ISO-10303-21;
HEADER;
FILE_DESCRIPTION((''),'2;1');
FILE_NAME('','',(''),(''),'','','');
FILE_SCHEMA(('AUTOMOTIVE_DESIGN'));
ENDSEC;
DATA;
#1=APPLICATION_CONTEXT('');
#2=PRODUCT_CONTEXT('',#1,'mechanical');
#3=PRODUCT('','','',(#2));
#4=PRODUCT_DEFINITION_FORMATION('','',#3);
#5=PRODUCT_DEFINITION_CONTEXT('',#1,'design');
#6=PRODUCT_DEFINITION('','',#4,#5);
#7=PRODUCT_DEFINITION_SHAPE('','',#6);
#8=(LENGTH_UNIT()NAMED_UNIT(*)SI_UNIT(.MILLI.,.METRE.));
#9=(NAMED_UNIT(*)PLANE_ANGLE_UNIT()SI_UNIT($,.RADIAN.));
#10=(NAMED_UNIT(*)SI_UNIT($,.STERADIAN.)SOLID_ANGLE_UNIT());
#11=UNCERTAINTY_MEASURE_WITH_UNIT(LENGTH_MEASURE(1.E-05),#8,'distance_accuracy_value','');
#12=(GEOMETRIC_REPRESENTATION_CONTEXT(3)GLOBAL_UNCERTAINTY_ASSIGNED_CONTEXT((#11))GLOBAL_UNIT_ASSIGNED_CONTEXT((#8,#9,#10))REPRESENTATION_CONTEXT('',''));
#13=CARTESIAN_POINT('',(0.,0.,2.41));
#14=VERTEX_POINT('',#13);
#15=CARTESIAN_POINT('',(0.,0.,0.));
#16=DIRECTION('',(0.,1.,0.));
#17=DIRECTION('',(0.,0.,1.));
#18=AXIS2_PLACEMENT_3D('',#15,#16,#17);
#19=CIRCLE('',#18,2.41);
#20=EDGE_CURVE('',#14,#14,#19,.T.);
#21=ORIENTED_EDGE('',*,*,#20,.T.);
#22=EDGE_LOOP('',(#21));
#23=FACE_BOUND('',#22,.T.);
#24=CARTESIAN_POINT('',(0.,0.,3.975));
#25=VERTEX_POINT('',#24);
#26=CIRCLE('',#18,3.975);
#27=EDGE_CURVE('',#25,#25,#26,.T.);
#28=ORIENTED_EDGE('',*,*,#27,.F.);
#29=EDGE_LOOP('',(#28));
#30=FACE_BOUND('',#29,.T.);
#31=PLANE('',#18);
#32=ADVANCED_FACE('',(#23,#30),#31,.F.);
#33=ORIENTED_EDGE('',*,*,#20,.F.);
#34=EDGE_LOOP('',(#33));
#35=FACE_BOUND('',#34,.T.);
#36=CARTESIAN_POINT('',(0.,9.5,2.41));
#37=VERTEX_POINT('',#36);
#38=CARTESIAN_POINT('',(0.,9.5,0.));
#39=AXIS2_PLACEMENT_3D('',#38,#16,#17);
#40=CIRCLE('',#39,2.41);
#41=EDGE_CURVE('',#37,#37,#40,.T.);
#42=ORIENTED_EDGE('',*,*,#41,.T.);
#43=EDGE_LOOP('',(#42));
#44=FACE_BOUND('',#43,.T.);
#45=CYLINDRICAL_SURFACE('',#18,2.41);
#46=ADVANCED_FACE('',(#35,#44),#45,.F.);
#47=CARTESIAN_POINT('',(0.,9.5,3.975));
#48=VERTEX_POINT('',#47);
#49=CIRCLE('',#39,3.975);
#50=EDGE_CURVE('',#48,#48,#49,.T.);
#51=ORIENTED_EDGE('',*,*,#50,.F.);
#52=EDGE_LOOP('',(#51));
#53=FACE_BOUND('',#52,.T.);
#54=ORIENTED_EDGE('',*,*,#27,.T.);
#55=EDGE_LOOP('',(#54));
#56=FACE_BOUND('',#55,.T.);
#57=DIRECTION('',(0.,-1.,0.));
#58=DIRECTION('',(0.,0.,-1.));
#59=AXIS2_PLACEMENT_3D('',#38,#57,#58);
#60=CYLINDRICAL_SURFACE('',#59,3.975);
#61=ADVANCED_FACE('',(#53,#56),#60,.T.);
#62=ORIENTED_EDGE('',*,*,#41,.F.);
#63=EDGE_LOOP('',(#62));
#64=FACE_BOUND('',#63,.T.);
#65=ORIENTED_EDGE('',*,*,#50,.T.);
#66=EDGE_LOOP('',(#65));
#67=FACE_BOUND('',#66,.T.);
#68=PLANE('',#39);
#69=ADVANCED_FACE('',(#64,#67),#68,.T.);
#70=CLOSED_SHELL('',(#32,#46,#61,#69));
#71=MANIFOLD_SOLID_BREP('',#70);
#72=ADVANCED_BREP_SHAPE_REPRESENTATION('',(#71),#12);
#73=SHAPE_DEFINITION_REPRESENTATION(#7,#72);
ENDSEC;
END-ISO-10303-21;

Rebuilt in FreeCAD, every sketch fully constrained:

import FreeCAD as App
import Part
import Sketcher

V = App.Vector
Q = App.Units.Quantity

doc = App.newDocument("Part")
params = doc.addObject("Spreadsheet::Sheet", "Params")
for row, (alias, value) in enumerate([
    ("sketch1_diameter", "7.95 mm"),
    ("pad1_length", "9.5 mm"),
    ("sketch2_diameter", "4.82 mm"),
], start=1):
    params.set(f"A{row}", alias)
    params.set(f"B{row}", "=" + value)
    params.setAlias(f"B{row}", alias)

body = doc.addObject("PartDesign::Body", "Body")

sketch1 = body.newObject("Sketcher::SketchObject", "Sketch")
sketch1.AttachmentSupport = (doc.getObject("XZ_Plane"), [""])
sketch1.MapMode = "FlatFace"
sketch1.addGeometry(Part.Circle(V(0, 0, 0), V(0, 0, 1), 4), False)
sketch1.addConstraint(Sketcher.Constraint("Coincident", 0, 3, -1, 1))
sketch1.addConstraint(Sketcher.Constraint("Diameter", 0, Q("7.95 mm")))
sketch1.setExpression("Constraints[1]", "Params.sketch1_diameter")
pad1 = body.newObject("PartDesign::Pad", "Pad")
pad1.Profile = sketch1
pad1.setExpression("Length", "Params.pad1_length")
pad1.Reversed = True

sketch2 = body.newObject("Sketcher::SketchObject", "Sketch001")
sketch2.AttachmentSupport = (doc.getObject("XZ_Plane"), [""])
sketch2.MapMode = "FlatFace"
sketch2.AttachmentOffset = App.Placement(V(0, 0, -9.5), App.Rotation())
sketch2.addGeometry(Part.Circle(V(0, 0, 0), V(0, 0, 1), 2.4), False)
sketch2.addConstraint(Sketcher.Constraint("Coincident", 0, 3, -1, 1))
sketch2.addConstraint(Sketcher.Constraint("Diameter", 0, Q("4.82 mm")))
sketch2.setExpression("Constraints[1]", "Params.sketch2_diameter")
pocket1 = body.newObject("PartDesign::Pocket", "Pocket")
pocket1.Profile = sketch2
pocket1.Type = "ThroughAll"
pocket1.Reversed = True

doc.recompute()
